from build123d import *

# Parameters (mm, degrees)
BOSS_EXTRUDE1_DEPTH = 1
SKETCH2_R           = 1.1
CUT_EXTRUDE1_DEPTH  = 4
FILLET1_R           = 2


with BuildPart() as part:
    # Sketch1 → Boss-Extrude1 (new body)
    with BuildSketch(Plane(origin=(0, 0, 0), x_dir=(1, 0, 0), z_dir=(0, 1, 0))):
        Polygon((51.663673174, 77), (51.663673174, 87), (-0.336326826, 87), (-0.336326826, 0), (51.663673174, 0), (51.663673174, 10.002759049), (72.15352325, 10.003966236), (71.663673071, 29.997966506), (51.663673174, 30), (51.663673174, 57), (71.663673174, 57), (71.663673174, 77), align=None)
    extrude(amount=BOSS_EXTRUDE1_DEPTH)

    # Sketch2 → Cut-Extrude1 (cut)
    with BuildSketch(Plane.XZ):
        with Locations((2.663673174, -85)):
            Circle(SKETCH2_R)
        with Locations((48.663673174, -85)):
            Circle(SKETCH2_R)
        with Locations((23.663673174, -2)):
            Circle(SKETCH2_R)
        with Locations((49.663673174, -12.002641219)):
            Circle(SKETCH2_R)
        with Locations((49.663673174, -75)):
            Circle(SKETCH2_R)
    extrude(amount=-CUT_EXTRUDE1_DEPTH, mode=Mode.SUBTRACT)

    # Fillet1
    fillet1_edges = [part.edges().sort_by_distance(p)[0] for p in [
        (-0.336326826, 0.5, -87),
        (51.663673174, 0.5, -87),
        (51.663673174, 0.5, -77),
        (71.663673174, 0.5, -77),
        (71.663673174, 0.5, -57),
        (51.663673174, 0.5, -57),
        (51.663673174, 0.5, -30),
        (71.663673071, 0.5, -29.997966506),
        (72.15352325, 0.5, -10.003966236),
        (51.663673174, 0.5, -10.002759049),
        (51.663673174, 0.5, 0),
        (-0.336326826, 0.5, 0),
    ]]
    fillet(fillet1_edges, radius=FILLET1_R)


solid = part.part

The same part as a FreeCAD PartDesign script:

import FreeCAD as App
import Part
import Sketcher
from FreeCAD import Vector


def edges_at(feature, points):
    """Names of the edges that pass closest to the given points."""
    edges = feature.Shape.Edges
    near = lambda p: min(range(len(edges)), key=lambda i: edges[i].distToShape(Part.Vertex(*p))[0])
    return sorted({f"Edge{near(p) + 1}" for p in points})


def add_polygon(sketch, points):
    """Adds a closed chain of lines whose ends are joined by coincident constraints."""
    first, n = sketch.GeometryCount, len(points)
    for a, b in zip(points, points[1:] + points[:1]):
        sketch.addGeometry(Part.LineSegment(App.Vector(*a, 0), App.Vector(*b, 0)), False)
    for i in range(n):
        sketch.addConstraint(Sketcher.Constraint("Coincident", first + i, 2, first + (i + 1) % n, 1))

doc = App.newDocument("Part")
body = doc.addObject("PartDesign::Body", "Body")

sketch1 = body.newObject("Sketcher::SketchObject", "Sketch")
sketch1.AttachmentSupport = (doc.getObject("XZ_Plane"), [""])
sketch1.MapMode = "FlatFace"
add_polygon(sketch1, [(51.663673, -77), (51.663673, -87), (-0.336327, -87), (-0.336327, 0), (51.663673, 0), (51.663673, -10.002759), (72.153523, -10.003966), (71.663673, -29.997967), (51.663673, -30), (51.663673, -57), (71.663673, -57), (71.663673, -77)])
sketch1.addConstraint(Sketcher.Constraint("Vertical", 0))
sketch1.addConstraint(Sketcher.Constraint("Horizontal", 1))
sketch1.addConstraint(Sketcher.Constraint("Vertical", 2))
sketch1.addConstraint(Sketcher.Constraint("Horizontal", 3))
sketch1.addConstraint(Sketcher.Constraint("Vertical", 4))
sketch1.addConstraint(Sketcher.Constraint("Vertical", 8))
sketch1.addConstraint(Sketcher.Constraint("Horizontal", 9))
sketch1.addConstraint(Sketcher.Constraint("Vertical", 10))
sketch1.addConstraint(Sketcher.Constraint("Horizontal", 11))
sketch1.addConstraint(Sketcher.Constraint("PointOnObject", 2, 2, -1))
sketch1.addConstraint(Sketcher.Constraint("DistanceX", 1, 2, 1, 1, 52.0))
sketch1.addConstraint(Sketcher.Constraint("DistanceX", 3, 1, 3, 2, 52.0))
sketch1.addConstraint(Sketcher.Constraint("DistanceX", 9, 1, 9, 2, 20.0))
sketch1.addConstraint(Sketcher.Constraint("DistanceX", 11, 2, 11, 1, 20.0))
sketch1.addConstraint(Sketcher.Constraint("DistanceY", 0, 2, 0, 1, 10.0))
sketch1.addConstraint(Sketcher.Constraint("DistanceY", 2, 1, 2, 2, 87.0))
sketch1.addConstraint(Sketcher.Constraint("DistanceY", 8, 2, 8, 1, 27.0))
sketch1.addConstraint(Sketcher.Constraint("DistanceY", 10, 2, 10, 1, 20.0))
sketch1.addConstraint(Sketcher.Constraint("Distance", 6, 20.0))
sketch1.addConstraint(Sketcher.Constraint("Distance", 7, 20.0))
sketch1.addConstraint(Sketcher.Constraint("DistanceY", 6, 2, 5, 2, 19.994))
sketch1.addConstraint(Sketcher.Constraint("DistanceY", 4, 2, 4, 1, 10.002759))
sketch1.addConstraint(Sketcher.Constraint("DistanceX", -1, 1, 0, 2, 51.663673))
sketch1.addConstraint(Sketcher.Constraint("DistanceY", 5, 2, -1, 1, 10.003966))
pad1 = body.newObject("PartDesign::Pad", "Pad")
pad1.Profile = sketch1
pad1.Length = 1
pad1.Reversed = True

sketch2 = body.newObject("Sketcher::SketchObject", "Sketch001")
sketch2.AttachmentSupport = (doc.getObject("XZ_Plane"), [""])
sketch2.MapMode = "FlatFace"
sketch2.addGeometry(Part.Circle(Vector(2.7, -85, 0), Vector(0, 0, 1), 1.1), False)
sketch2.addGeometry(Part.Circle(Vector(48.7, -85, 0), Vector(0, 0, 1), 1.1), False)
sketch2.addGeometry(Part.Circle(Vector(23.7, -2, 0), Vector(0, 0, 1), 1.1), False)
sketch2.addGeometry(Part.Circle(Vector(49.7, -12, 0), Vector(0, 0, 1), 1.1), False)
sketch2.addGeometry(Part.Circle(Vector(49.7, -75, 0), Vector(0, 0, 1), 1.1), False)
sketch2.addConstraint(Sketcher.Constraint("Equal", 0, 1))
sketch2.addConstraint(Sketcher.Constraint("Equal", 1, 2))
sketch2.addConstraint(Sketcher.Constraint("Equal", 2, 3))
sketch2.addConstraint(Sketcher.Constraint("Equal", 3, 4))
sketch2.addConstraint(Sketcher.Constraint("Horizontal", 0, 3, 1, 3))
sketch2.addConstraint(Sketcher.Constraint("Vertical", 3, 3, 4, 3))
sketch2.addConstraint(Sketcher.Constraint("Diameter", 0, 2.2))
sketch2.addConstraint(Sketcher.Constraint("DistanceY", 0, 3, -1, 1, 85.0))
sketch2.addConstraint(Sketcher.Constraint("DistanceY", 2, 3, -1, 1, 2.0))
sketch2.addConstraint(Sketcher.Constraint("DistanceY", 4, 3, -1, 1, 75.0))
sketch2.addConstraint(Sketcher.Constraint("DistanceX", 0, 3, 1, 3, 46.0))
sketch2.addConstraint(Sketcher.Constraint("DistanceX", 0, 3, 2, 3, 21.0))
sketch2.addConstraint(Sketcher.Constraint("DistanceX", 2, 3, 3, 3, 26.0))
sketch2.addConstraint(Sketcher.Constraint("DistanceY", 3, 3, -1, 1, 12.002641))
sketch2.addConstraint(Sketcher.Constraint("DistanceX", -1, 1, 0, 3, 2.663673))
pocket1 = body.newObject("PartDesign::Pocket", "Pocket")
pocket1.Profile = sketch2
pocket1.Length = 4
doc.recompute()

fillet = body.newObject("PartDesign::Fillet", "Fillet")
fillet.Base = (pocket1, edges_at(pocket1, [
    (-0.336, 0.5, -87),
    (51.664, 0.5, -87),
    (51.664, 0.5, -77),
    (71.664, 0.5, -77),
    (71.664, 0.5, -57),
    (51.664, 0.5, -57),
    (51.664, 0.5, -30),
    (71.664, 0.5, -29.998),
    (72.154, 0.5, -10.004),
    (51.664, 0.5, -10.003),
    (51.664, 0.5, 0),
    (-0.336, 0.5, 0),
]))
fillet.Radius = 2

doc.recompute()
